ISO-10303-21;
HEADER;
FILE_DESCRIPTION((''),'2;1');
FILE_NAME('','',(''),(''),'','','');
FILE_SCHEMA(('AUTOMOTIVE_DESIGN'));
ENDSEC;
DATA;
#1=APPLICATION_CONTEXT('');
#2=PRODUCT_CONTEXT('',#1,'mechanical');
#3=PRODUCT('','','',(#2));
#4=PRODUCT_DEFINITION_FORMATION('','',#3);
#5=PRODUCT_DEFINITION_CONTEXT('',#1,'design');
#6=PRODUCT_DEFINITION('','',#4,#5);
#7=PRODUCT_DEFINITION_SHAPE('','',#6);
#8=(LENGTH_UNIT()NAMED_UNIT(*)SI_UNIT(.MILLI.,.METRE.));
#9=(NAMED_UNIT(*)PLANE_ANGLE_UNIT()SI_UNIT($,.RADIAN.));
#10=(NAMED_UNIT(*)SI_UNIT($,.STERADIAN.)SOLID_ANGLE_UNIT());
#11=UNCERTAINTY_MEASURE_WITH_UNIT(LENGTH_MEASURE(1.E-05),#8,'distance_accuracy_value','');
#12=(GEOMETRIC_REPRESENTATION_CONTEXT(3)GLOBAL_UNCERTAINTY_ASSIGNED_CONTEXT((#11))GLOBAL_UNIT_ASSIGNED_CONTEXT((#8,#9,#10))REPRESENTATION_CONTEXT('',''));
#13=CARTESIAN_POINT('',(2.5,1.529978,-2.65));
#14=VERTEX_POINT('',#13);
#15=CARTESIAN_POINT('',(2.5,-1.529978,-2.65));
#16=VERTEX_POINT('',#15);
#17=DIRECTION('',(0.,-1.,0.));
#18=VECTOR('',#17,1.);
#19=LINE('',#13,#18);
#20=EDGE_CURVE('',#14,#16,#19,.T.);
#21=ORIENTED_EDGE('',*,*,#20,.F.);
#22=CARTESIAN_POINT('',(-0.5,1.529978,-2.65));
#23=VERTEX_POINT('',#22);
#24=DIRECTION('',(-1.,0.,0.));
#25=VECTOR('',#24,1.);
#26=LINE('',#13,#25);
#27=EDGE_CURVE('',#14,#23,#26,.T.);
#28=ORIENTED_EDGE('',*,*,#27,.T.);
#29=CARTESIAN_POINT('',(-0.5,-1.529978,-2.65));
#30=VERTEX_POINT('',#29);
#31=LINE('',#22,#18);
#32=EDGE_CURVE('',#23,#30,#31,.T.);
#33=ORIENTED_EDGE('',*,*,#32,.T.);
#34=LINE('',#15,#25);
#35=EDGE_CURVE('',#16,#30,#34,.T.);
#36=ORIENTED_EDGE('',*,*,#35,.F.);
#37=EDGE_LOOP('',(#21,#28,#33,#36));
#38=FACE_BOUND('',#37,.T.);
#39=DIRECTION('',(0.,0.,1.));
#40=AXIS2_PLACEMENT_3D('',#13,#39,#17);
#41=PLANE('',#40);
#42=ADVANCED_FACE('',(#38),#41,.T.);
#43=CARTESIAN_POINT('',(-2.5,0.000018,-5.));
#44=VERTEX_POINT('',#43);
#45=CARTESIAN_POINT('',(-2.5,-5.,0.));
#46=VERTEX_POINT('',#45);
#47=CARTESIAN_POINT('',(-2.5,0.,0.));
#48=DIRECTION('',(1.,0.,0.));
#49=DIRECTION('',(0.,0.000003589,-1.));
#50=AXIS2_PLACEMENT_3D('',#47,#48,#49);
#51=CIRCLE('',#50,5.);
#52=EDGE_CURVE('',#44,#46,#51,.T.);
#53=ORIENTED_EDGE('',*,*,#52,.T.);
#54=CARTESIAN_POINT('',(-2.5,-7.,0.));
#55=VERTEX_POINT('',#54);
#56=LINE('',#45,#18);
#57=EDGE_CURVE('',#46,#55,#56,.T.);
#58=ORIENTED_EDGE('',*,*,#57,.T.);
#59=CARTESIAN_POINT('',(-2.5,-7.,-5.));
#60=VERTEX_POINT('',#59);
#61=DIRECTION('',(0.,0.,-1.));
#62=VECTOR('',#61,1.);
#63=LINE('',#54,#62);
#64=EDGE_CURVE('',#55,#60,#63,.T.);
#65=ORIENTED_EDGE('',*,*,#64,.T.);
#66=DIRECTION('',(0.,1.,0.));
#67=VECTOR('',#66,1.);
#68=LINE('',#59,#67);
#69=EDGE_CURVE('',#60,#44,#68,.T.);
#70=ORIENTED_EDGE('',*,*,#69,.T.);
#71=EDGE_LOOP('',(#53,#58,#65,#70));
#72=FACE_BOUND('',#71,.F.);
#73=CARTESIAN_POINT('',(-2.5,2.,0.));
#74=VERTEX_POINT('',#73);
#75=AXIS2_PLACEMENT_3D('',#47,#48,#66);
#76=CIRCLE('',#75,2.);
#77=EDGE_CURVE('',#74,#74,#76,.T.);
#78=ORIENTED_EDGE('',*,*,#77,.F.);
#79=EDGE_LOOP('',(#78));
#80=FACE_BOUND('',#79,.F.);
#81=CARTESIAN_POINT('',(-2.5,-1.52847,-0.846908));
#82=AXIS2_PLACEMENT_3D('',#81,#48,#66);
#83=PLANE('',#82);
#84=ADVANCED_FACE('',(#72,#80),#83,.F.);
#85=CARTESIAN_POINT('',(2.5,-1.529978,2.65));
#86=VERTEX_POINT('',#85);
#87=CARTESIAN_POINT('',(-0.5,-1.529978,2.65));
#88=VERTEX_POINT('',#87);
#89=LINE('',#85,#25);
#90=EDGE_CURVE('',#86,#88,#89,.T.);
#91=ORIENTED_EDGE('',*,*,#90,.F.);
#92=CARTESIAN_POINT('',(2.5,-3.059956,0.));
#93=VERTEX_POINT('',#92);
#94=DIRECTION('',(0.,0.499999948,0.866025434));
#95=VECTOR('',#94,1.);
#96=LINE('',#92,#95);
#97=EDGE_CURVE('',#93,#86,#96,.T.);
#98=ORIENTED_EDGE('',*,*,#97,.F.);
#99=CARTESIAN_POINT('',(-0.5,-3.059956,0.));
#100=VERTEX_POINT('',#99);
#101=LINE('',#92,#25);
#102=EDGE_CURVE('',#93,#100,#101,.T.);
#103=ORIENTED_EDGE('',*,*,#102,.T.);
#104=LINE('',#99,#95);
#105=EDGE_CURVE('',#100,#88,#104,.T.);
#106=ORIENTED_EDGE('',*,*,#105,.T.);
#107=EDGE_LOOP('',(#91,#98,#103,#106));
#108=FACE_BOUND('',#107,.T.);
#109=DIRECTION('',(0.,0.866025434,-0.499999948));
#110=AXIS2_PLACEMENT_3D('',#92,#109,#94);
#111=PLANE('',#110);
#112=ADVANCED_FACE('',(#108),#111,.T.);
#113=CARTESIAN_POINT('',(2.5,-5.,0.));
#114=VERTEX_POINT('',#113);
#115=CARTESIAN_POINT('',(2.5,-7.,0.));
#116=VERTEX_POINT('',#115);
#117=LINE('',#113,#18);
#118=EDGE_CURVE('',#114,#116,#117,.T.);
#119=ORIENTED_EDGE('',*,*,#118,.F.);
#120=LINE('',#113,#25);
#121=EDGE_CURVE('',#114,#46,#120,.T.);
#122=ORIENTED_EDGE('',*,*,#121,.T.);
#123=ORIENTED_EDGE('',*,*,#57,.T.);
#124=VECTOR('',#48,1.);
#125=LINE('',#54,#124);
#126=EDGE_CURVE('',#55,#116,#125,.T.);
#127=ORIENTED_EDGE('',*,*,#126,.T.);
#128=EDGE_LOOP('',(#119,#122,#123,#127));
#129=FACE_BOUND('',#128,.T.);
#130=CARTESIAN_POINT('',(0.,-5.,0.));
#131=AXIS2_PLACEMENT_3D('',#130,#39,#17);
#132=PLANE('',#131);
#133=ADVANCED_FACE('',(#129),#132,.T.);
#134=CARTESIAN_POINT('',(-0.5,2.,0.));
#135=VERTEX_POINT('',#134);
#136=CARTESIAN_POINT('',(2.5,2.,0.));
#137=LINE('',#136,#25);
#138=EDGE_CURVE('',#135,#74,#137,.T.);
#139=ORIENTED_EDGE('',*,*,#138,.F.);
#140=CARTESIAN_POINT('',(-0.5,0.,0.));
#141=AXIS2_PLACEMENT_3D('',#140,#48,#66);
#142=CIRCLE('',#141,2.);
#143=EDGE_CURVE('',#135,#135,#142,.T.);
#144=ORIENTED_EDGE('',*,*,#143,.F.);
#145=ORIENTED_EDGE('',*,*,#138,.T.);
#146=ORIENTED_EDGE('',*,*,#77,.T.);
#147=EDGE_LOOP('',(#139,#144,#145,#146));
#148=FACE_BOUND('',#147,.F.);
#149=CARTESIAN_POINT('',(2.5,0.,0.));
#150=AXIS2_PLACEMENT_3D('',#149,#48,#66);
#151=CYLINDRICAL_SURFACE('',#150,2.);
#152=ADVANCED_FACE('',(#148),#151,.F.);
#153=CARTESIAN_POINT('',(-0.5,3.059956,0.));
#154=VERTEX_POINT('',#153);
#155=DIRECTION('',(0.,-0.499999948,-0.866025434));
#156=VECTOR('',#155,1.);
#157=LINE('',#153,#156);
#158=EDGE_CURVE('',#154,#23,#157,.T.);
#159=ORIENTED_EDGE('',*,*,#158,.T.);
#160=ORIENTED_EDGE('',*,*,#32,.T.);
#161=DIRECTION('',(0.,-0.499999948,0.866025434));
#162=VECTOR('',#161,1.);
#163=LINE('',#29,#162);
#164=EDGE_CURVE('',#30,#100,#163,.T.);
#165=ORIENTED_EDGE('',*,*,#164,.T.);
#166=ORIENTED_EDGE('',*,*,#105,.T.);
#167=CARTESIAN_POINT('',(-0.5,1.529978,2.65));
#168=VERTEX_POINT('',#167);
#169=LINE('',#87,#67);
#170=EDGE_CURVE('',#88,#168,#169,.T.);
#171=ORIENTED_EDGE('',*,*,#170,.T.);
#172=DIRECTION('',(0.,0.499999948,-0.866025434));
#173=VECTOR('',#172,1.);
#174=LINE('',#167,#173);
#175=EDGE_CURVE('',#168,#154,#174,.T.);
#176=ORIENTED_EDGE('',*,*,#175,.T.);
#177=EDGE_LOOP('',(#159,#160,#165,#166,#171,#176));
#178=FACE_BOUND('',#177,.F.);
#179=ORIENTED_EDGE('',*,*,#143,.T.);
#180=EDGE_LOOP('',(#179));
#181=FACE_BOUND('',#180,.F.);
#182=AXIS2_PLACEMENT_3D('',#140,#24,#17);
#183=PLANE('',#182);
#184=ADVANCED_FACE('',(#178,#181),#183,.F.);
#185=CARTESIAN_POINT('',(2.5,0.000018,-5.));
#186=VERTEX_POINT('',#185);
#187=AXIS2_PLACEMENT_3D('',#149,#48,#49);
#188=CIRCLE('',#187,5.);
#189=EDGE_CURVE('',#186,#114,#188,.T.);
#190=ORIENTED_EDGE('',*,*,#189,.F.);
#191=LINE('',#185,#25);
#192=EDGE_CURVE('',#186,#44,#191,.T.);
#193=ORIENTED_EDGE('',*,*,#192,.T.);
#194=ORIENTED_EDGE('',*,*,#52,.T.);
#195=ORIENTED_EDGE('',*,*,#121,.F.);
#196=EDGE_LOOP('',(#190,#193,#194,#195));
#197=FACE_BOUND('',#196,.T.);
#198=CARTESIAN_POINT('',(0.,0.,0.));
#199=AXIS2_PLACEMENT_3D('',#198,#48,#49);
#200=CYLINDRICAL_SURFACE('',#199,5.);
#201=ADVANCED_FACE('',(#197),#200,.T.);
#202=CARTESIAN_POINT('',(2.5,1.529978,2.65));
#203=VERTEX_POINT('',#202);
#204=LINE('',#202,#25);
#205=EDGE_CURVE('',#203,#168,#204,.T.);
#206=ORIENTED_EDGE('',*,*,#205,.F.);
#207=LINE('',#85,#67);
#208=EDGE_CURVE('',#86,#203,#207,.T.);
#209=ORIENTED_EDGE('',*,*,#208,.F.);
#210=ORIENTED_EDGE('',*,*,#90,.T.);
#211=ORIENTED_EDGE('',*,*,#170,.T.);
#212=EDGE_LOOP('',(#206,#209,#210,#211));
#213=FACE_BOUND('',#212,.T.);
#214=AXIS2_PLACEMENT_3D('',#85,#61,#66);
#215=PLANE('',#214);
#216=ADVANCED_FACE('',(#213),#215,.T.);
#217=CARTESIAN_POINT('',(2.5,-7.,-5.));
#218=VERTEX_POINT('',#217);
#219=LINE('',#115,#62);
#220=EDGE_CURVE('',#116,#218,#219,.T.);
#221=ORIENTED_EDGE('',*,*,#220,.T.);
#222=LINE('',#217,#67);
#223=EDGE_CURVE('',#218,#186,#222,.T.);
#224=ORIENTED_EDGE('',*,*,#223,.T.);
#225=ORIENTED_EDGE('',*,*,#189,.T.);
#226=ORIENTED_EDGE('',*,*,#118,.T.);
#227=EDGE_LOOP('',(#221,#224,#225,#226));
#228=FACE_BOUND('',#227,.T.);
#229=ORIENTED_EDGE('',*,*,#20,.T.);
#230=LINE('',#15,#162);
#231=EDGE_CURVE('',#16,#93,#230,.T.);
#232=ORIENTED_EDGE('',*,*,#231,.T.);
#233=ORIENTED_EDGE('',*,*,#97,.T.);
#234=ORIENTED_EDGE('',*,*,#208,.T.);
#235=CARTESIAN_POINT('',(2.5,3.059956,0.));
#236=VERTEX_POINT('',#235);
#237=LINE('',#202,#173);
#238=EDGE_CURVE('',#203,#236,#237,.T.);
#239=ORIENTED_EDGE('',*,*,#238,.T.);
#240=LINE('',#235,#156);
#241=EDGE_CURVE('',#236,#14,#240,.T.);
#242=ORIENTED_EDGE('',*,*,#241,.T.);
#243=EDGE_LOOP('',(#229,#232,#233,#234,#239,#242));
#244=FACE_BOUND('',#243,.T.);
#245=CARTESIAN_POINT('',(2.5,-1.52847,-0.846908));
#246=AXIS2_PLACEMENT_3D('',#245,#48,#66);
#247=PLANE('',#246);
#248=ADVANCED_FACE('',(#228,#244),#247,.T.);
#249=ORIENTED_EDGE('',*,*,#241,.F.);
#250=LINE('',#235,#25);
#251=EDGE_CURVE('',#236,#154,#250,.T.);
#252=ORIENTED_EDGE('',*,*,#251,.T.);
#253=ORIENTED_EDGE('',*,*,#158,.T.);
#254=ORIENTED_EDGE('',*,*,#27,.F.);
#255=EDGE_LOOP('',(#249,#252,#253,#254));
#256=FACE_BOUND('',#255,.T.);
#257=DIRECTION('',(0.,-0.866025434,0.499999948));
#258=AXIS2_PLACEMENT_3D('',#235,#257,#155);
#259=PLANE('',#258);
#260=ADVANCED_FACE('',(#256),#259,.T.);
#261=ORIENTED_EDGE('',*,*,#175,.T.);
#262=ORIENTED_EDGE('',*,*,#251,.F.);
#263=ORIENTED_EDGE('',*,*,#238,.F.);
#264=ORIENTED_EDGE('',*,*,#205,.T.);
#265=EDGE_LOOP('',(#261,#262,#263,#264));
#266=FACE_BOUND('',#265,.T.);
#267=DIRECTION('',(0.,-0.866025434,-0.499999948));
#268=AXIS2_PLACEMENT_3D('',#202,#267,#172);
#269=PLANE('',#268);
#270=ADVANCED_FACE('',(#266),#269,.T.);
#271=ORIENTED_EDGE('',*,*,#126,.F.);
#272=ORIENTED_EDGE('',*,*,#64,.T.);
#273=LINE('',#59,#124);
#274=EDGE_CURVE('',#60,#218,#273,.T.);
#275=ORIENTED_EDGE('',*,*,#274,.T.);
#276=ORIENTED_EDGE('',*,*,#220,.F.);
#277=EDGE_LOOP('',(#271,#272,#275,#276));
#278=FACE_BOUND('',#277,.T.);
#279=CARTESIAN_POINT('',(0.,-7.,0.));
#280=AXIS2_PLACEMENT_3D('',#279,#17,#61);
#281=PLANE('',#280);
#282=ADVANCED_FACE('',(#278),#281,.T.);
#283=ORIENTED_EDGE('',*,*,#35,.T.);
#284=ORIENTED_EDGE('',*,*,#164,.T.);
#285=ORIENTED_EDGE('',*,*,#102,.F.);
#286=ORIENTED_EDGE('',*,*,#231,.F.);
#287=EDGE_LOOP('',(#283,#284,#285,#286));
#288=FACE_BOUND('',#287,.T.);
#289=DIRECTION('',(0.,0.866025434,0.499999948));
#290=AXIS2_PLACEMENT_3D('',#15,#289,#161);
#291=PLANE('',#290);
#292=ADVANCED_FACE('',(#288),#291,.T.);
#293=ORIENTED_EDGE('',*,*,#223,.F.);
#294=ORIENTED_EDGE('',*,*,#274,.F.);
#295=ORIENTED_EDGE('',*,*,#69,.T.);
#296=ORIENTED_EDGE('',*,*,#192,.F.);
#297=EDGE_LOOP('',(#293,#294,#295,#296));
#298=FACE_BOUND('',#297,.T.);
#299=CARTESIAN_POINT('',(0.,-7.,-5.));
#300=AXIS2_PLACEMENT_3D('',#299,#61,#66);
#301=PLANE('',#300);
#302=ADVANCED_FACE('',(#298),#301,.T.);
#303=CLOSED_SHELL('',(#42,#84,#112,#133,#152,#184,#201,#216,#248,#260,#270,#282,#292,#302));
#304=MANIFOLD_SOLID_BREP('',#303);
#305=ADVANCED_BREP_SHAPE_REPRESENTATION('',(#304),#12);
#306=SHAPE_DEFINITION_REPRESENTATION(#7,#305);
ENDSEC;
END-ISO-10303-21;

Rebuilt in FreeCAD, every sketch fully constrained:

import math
import FreeCAD as App
import Part
import Sketcher

V = App.Vector
Q = App.Units.Quantity


def add_polygon(sketch, points):
    """Adds a closed chain of lines whose ends are joined by coincident constraints."""
    first, n = sketch.GeometryCount, len(points)
    for a, b in zip(points, points[1:] + points[:1]):
        sketch.addGeometry(Part.LineSegment(App.Vector(*a, 0), App.Vector(*b, 0)), False)
    for i in range(n):
        sketch.addConstraint(Sketcher.Constraint("Coincident", first + i, 2, first + (i + 1) % n, 1))

doc = App.newDocument("Part")
params = doc.addObject("Spreadsheet::Sheet", "Params")
for row, (alias, value) in enumerate([
    ("sketch1_radius", "5 mm"),
    ("sketch1_width", "2 mm"),
    ("pad1_length", "5 mm"),
    ("sketch2_diameter", "4 mm"),
    ("pocket2_length", "3 mm"),
], start=1):
    params.set(f"A{row}", alias)
    params.set(f"B{row}", "=" + value)
    params.setAlias(f"B{row}", alias)

body = doc.addObject("PartDesign::Body", "Body")

# Sketch on YZ plane
sketch1 = body.newObject("Sketcher::SketchObject", "Sketch")
sketch1.AttachmentSupport = (doc.getObject("YZ_Plane"), [""])
sketch1.MapMode = "FlatFace"
sketch1.addGeometry(Part.LineSegment(V(-5, 0, 0), V(-7, 0, 0)), False)
sketch1.addGeometry(Part.LineSegment(V(-7, 0, 0), V(-7, -5, 0)), False)
sketch1.addGeometry(Part.LineSegment(V(-7, -5, 0), V(0.000018, -5, 0)), False)
sketch1.addGeometry(Part.ArcOfCircle(Part.Circle(V(0, 0, 0), V(0, 0, 1), 5), math.radians(-89.999794), math.radians(180.000001)), False)
sketch1.addConstraint(Sketcher.Constraint("Coincident", 0, 2, 1, 1))
sketch1.addConstraint(Sketcher.Constraint("Coincident", 1, 2, 2, 1))
sketch1.addConstraint(Sketcher.Constraint("Coincident", 2, 2, 3, 1))
sketch1.addConstraint(Sketcher.Constraint("Coincident", 3, 2, 0, 1))
sketch1.addConstraint(Sketcher.Constraint("Horizontal", 0))
sketch1.addConstraint(Sketcher.Constraint("Vertical", 1))
sketch1.addConstraint(Sketcher.Constraint("Horizontal", 2))
sketch1.addConstraint(Sketcher.Constraint("Coincident", 3, 3, -1, 1))
sketch1.addConstraint(Sketcher.Constraint("PointOnObject", 0, 2, -1))
sketch1.addConstraint(Sketcher.Constraint("Radius", 3, Q("5 mm")))
sketch1.addConstraint(Sketcher.Constraint("DistanceX", 0, 2, 0, 1, Q("2 mm")))
sketch1.addConstraint(Sketcher.Constraint("DistanceX", 2, 1, 2, 2, Q("7.000018 mm")))
sketch1.setExpression("Constraints[9]", "Params.sketch1_radius")
sketch1.setExpression("Constraints[10]", "Params.sketch1_width")
pad1 = body.newObject("PartDesign::Pad", "Pad")
pad1.Profile = sketch1
pad1.setExpression("Length", "Params.pad1_length")
pad1.Midplane = True

# Sketch on YZ plane
sketch2 = body.newObject("Sketcher::SketchObject", "Sketch001")
sketch2.AttachmentSupport = (doc.getObject("YZ_Plane"), [""])
sketch2.MapMode = "FlatFace"
sketch2.AttachmentOffset = App.Placement(V(0, 0, 2.5), App.Rotation())
sketch2.addGeometry(Part.Circle(V(0, 0, 0), V(0, 0, 1), 2), False)
sketch2.addConstraint(Sketcher.Constraint("Coincident", 0, 3, -1, 1))
sketch2.addConstraint(Sketcher.Constraint("Diameter", 0, Q("4 mm")))
sketch2.setExpression("Constraints[1]", "Params.sketch2_diameter")
pocket1 = body.newObject("PartDesign::Pocket", "Pocket")
pocket1.Profile = sketch2
pocket1.Type = "ThroughAll"

# Sketch on YZ plane
sketch3 = body.newObject("Sketcher::SketchObject", "Sketch002")
sketch3.AttachmentSupport = (doc.getObject("YZ_Plane"), [""])
sketch3.MapMode = "FlatFace"
sketch3.AttachmentOffset = App.Placement(V(0, 0, 2.5), App.Rotation())
add_polygon(sketch3, [(-1.529978, 2.65), (-3.059956, 0), (-1.529978, -2.65), (1.529978, -2.65), (3.059956, 0), (1.529978, 2.65)])  # lines 0-5
sketch3.addConstraint(Sketcher.Constraint("Horizontal", 2))
sketch3.addConstraint(Sketcher.Constraint("Horizontal", 5))
sketch3.addConstraint(Sketcher.Constraint("Symmetric", 0, 2, 3, 2, -1, 1))
sketch3.addConstraint(Sketcher.Constraint("Symmetric", 1, 2, 4, 2, -1, 1))
sketch3.addConstraint(Sketcher.Constraint("PointOnObject", 0, 2, -1))
sketch3.addConstraint(Sketcher.Constraint("Parallel", 0, 3))
sketch3.addConstraint(Sketcher.Constraint("Vertical", 2, 2, 4, 2))
sketch3.addConstraint(Sketcher.Constraint("Angle", 0, Q("-119.999997 deg")))
sketch3.addConstraint(Sketcher.Constraint("DistanceY", 2, 2, 4, 2, Q("5.3 mm")))
sketch3.addConstraint(Sketcher.Constraint("DistanceX", 2, 1, 2, 2, Q("3.059956 mm")))
pocket2 = body.newObject("PartDesign::Pocket", "Pocket001")
pocket2.Profile = sketch3
pocket2.setExpression("Length", "Params.pocket2_length")

doc.recompute()
